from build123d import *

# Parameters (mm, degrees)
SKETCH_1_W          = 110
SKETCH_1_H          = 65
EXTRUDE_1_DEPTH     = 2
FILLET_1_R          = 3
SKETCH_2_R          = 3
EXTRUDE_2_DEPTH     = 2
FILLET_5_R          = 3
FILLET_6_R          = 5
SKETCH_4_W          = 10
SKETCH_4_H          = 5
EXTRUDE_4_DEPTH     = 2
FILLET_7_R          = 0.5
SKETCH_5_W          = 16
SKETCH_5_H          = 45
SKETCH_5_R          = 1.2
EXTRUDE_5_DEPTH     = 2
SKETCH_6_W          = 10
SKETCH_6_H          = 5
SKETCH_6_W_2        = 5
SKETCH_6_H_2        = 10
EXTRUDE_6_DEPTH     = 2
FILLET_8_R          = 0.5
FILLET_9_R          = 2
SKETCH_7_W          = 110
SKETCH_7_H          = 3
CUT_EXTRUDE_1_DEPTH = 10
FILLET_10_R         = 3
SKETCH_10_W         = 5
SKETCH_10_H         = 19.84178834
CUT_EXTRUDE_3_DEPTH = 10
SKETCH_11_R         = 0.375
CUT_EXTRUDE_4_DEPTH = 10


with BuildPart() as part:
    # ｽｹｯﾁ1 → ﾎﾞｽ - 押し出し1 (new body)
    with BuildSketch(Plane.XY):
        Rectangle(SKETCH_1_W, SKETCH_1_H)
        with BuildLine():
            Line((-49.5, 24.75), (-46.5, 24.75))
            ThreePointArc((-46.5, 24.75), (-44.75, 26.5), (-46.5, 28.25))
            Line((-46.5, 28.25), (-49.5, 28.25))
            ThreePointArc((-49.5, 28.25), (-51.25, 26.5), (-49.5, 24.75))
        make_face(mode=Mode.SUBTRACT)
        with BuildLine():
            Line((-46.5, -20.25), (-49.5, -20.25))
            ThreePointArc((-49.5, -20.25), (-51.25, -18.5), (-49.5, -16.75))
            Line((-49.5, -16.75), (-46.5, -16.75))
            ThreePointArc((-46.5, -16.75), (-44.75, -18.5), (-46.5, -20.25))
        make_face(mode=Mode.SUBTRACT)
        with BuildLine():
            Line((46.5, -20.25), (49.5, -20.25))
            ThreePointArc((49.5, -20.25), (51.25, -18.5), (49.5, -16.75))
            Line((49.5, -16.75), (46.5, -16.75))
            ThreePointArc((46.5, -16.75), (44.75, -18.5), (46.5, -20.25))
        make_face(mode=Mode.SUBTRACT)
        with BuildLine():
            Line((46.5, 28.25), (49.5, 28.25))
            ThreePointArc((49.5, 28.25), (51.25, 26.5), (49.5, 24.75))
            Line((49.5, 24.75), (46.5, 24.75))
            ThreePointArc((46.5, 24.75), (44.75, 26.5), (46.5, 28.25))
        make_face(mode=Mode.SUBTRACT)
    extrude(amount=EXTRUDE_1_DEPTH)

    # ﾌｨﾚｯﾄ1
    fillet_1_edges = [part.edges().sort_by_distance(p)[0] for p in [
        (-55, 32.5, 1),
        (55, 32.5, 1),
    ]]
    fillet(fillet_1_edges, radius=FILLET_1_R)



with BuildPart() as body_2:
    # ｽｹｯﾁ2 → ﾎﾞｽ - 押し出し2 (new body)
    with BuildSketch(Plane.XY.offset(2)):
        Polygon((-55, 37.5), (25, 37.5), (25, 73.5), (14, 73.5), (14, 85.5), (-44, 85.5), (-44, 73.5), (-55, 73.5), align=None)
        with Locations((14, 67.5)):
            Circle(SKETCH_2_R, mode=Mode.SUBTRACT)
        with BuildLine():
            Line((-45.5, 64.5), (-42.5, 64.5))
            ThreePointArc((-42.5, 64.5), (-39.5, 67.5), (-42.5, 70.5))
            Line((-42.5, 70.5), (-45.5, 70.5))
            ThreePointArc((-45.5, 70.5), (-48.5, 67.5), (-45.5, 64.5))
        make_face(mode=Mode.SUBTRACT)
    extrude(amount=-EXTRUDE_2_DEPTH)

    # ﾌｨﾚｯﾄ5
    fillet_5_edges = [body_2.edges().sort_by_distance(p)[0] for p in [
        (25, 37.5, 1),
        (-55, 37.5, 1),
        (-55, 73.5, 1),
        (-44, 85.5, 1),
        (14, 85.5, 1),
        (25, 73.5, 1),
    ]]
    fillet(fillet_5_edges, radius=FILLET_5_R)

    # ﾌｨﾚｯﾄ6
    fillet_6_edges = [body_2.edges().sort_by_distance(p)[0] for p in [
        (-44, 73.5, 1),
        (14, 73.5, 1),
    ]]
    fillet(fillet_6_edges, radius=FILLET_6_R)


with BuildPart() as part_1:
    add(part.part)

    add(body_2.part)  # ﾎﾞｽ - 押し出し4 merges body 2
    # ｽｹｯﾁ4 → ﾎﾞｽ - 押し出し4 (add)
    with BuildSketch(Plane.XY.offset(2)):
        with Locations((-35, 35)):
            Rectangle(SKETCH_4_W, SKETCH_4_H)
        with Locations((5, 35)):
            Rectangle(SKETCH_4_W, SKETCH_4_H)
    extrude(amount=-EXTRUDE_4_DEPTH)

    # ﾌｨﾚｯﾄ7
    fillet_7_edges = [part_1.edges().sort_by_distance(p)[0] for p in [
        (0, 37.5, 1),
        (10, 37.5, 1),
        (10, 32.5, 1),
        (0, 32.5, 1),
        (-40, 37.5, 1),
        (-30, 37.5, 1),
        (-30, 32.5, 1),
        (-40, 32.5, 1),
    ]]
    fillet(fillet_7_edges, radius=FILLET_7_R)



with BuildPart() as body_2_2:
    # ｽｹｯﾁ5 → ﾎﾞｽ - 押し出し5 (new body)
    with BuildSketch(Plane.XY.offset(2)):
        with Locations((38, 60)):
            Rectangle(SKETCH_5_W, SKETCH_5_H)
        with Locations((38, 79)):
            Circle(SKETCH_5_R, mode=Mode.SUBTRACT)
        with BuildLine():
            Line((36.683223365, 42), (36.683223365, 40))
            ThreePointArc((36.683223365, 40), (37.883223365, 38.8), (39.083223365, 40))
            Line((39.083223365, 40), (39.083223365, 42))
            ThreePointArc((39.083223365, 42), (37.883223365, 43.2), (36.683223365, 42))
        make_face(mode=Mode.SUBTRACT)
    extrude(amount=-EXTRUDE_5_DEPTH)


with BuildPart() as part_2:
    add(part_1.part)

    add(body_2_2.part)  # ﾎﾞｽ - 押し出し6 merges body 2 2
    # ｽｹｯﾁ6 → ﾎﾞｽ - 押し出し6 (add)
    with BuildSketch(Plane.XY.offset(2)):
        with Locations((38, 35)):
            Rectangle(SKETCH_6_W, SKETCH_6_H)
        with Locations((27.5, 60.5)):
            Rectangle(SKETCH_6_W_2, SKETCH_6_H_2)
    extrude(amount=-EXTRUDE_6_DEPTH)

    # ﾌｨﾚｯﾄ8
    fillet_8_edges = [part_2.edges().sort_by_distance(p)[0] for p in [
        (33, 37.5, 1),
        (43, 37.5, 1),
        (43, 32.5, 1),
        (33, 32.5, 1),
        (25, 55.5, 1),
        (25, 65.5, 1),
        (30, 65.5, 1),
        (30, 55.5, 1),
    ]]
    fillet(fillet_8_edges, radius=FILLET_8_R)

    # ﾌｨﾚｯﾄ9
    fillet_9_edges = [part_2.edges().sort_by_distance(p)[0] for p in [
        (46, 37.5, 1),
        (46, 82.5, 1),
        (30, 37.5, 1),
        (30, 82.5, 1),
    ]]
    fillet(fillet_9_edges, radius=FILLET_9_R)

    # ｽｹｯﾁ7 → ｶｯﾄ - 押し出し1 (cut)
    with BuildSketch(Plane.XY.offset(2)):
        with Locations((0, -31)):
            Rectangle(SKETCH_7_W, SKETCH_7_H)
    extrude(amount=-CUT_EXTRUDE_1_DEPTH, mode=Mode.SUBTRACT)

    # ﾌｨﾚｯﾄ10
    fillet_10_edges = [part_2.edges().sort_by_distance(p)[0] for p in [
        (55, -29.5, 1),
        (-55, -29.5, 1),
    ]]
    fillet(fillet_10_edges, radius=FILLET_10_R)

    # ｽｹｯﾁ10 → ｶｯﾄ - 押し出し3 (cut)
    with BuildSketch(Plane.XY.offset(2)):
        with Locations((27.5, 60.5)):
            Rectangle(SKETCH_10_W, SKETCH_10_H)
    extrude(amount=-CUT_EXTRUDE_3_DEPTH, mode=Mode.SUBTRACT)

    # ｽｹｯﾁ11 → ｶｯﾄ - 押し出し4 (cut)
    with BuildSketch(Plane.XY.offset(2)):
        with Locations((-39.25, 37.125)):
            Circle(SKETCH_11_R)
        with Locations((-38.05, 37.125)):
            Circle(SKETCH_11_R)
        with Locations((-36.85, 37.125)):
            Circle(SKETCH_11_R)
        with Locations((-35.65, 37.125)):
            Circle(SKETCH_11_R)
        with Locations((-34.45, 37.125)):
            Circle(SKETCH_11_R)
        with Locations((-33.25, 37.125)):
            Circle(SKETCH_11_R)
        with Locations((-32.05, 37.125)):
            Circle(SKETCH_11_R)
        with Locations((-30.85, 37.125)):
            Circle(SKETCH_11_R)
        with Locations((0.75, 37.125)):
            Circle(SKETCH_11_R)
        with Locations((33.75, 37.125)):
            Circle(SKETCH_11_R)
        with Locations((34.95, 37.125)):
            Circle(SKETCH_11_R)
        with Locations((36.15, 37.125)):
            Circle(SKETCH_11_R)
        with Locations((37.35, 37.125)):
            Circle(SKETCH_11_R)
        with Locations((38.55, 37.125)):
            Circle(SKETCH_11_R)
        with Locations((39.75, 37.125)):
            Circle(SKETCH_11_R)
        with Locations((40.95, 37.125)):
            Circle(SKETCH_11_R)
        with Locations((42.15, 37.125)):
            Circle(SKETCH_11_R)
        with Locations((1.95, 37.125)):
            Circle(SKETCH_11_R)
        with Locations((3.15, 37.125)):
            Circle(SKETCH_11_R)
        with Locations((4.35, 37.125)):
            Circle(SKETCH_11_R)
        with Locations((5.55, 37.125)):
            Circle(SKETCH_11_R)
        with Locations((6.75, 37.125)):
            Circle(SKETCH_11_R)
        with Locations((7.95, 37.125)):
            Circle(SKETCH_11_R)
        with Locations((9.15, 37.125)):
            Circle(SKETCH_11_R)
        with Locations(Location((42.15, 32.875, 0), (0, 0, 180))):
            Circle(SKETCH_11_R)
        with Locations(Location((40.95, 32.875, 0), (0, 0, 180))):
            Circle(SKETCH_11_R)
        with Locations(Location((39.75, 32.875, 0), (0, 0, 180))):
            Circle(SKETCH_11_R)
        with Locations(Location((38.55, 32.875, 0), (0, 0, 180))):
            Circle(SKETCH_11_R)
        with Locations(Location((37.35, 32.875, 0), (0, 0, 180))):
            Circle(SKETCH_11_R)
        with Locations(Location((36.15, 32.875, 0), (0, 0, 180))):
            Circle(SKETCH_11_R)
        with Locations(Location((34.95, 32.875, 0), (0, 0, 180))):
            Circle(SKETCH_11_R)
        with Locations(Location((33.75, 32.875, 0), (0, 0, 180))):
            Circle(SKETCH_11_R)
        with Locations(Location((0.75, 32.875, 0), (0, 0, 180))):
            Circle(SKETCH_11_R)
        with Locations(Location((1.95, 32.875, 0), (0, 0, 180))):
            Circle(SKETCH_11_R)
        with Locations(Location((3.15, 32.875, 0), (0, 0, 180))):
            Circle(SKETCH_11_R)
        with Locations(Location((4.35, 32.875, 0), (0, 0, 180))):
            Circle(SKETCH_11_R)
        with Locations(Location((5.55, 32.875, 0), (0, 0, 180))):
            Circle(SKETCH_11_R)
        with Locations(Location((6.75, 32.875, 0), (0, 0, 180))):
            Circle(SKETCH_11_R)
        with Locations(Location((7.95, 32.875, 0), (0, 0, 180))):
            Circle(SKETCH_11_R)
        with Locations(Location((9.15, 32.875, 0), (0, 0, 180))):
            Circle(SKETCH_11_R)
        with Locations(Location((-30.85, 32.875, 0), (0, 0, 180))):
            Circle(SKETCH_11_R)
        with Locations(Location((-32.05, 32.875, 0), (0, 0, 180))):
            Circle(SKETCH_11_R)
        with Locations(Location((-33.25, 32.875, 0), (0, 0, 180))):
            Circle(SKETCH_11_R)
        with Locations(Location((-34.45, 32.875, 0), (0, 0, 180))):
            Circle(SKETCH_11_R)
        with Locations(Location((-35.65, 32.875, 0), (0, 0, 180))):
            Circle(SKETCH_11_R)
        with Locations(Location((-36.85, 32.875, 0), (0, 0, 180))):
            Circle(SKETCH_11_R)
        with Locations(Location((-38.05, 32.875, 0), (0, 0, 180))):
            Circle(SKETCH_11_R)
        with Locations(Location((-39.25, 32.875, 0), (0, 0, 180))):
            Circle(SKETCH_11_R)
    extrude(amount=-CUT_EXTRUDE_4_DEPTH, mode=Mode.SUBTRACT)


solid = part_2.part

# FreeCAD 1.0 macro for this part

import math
import FreeCAD as App
import Part
import Sketcher


def edges_at(feature, points):
    """Names of the edges that pass closest to the given points."""
    edges = feature.Shape.Edges
    near = lambda p: min(range(len(edges)), key=lambda i: edges[i].distToShape(Part.Vertex(*p))[0])
    return sorted({f"Edge{near(p) + 1}" for p in points})

doc = App.newDocument("Part")
params = doc.addObject("Spreadsheet::Sheet", "Params")
for row, (alias, value) in enumerate([
    ("sketch1_width", "110 mm"),
    ("sketch1_width2", "3 mm"),
    ("sketch1_height", "65 mm"),
    ("sketch1_radius", "1.75 mm"),
    ("pad1_length", "2 mm"),
    ("fillet_radius", "3 mm"),
    ("sketch2_diameter", "6 mm"),
    ("sketch2_width", "80 mm"),
    ("sketch2_width2", "11 mm"),
    ("sketch2_width3", "3 mm"),
    ("sketch2_height", "36 mm"),
    ("pad2_length", "2 mm"),
    ("fillet2_radius", "3 mm"),
    ("fillet3_radius", "5 mm"),
    ("sketch3_width", "10 mm"),
    ("sketch3_height", "5 mm"),
    ("pad3_length", "2 mm"),
    ("fillet4_radius", "0.5 mm"),
    ("sketch4_diameter", "2.4 mm"),
    ("sketch4_width", "16 mm"),
    ("sketch4_height", "45 mm"),
    ("sketch4_height2", "2 mm"),
    ("pad4_length", "2 mm"),
    ("sketch5_width", "10 mm"),
    ("sketch5_width2", "5 mm"),
    ("pad5_length", "2 mm"),
    ("fillet5_radius", "0.5 mm"),
    ("fillet6_radius", "2 mm"),
    ("sketch6_width", "110 mm"),
    ("sketch6_height", "3 mm"),
    ("pocket1_length", "10 mm"),
    ("fillet7_radius", "3 mm"),
    ("sketch7_width", "5 mm"),
    ("pocket2_length", "10 mm"),
    ("sketch8_diameter", "0.75 mm"),
    ("pocket3_length", "10 mm"),
], start=1):
    params.set(f"A{row}", alias)
    params.set(f"B{row}", "=" + value)
    params.setAlias(f"B{row}", alias)

body = doc.addObject("PartDesign::Body", "Body")

# Sketch on XY plane
sketch1 = body.newObject("Sketcher::SketchObject", "Sketch")
sketch1.AttachmentSupport = (doc.getObject("XY_Plane"), [""])
sketch1.MapMode = "FlatFace"
sketch1.addGeometry([
    Part.LineSegment(App.Vector(-55, 32.5, 0), App.Vector(-55, -32.5, 0)),  # 0
    Part.LineSegment(App.Vector(-55, -32.5, 0), App.Vector(55, -32.5, 0)),  # 1
    Part.LineSegment(App.Vector(55, -32.5, 0), App.Vector(55, 32.5, 0)),  # 2
    Part.LineSegment(App.Vector(55, 32.5, 0), App.Vector(-55, 32.5, 0)),  # 3
    Part.ArcOfCircle(Part.Circle(App.Vector(-46.5, -18.5, 0), App.Vector(0, 0, 1), 1.75), math.radians(-90), math.radians(90)),  # 4
    Part.LineSegment(App.Vector(-46.5, -20.25, 0), App.Vector(-49.5, -20.25, 0)),  # 5
    Part.ArcOfCircle(Part.Circle(App.Vector(-49.5, -18.5, 0), App.Vector(0, 0, 1), 1.75), math.radians(90), math.radians(270)),  # 6
    Part.LineSegment(App.Vector(-49.5, -16.75, 0), App.Vector(-46.5, -16.75, 0)),  # 7
    Part.LineSegment(App.Vector(49.5, -20.25, 0), App.Vector(46.5, -20.25, 0)),  # 8
    Part.ArcOfCircle(Part.Circle(App.Vector(46.5, -18.5, 0), App.Vector(0, 0, 1), 1.75), math.radians(90), math.radians(270)),  # 9
    Part.LineSegment(App.Vector(46.5, -16.75, 0), App.Vector(49.5, -16.75, 0)),  # 10
    Part.ArcOfCircle(Part.Circle(App.Vector(49.5, -18.5, 0), App.Vector(0, 0, 1), 1.75), math.radians(-90), math.radians(90)),  # 11
    Part.LineSegment(App.Vector(-46.5, 24.75, 0), App.Vector(-49.5, 24.75, 0)),  # 12
    Part.ArcOfCircle(Part.Circle(App.Vector(-49.5, 26.5, 0), App.Vector(0, 0, 1), 1.75), math.radians(90), math.radians(270)),  # 13
    Part.LineSegment(App.Vector(-49.5, 28.25, 0), App.Vector(-46.5, 28.25, 0)),  # 14
    Part.ArcOfCircle(Part.Circle(App.Vector(-46.5, 26.5, 0), App.Vector(0, 0, 1), 1.75), math.radians(-90), math.radians(90)),  # 15
    Part.ArcOfCircle(Part.Circle(App.Vector(46.5, 26.5, 0), App.Vector(0, 0, 1), 1.75), math.radians(90), math.radians(270)),  # 16
    Part.LineSegment(App.Vector(46.5, 28.25, 0), App.Vector(49.5, 28.25, 0)),  # 17
    Part.ArcOfCircle(Part.Circle(App.Vector(49.5, 26.5, 0), App.Vector(0, 0, 1), 1.75), math.radians(-90), math.radians(90)),  # 18
    Part.LineSegment(App.Vector(49.5, 24.75, 0), App.Vector(46.5, 24.75, 0)),  # 19
], False)
sketch1.addConstraint([
    Sketcher.Constraint("Coincident", 0, 2, 1, 1),
    Sketcher.Constraint("Coincident", 1, 2, 2, 1),
    Sketcher.Constraint("Coincident", 2, 2, 3, 1),
    Sketcher.Constraint("Coincident", 3, 2, 0, 1),
    Sketcher.Constraint("Tangent", 4, 1, 5, 1),
    Sketcher.Constraint("Tangent", 5, 2, 6, 2),
    Sketcher.Constraint("Tangent", 6, 1, 7, 1),
    Sketcher.Constraint("Tangent", 7, 2, 4, 2),
    Sketcher.Constraint("Tangent", 8, 2, 9, 2),
    Sketcher.Constraint("Tangent", 9, 1, 10, 1),
    Sketcher.Constraint("Tangent", 10, 2, 11, 2),
    Sketcher.Constraint("Tangent", 11, 1, 8, 1),
    Sketcher.Constraint("Tangent", 12, 2, 13, 2),
    Sketcher.Constraint("Tangent", 13, 1, 14, 1),
    Sketcher.Constraint("Tangent", 14, 2, 15, 2),
    Sketcher.Constraint("Tangent", 15, 1, 12, 1),
    Sketcher.Constraint("Tangent", 16, 1, 17, 1),
    Sketcher.Constraint("Tangent", 17, 2, 18, 2),
    Sketcher.Constraint("Tangent", 18, 1, 19, 1),
    Sketcher.Constraint("Tangent", 19, 2, 16, 2),
    Sketcher.Constraint("Vertical", 0),
    Sketcher.Constraint("Horizontal", 1),
    Sketcher.Constraint("Vertical", 2),
    Sketcher.Constraint("Horizontal", 3),
    Sketcher.Constraint("Horizontal", 5),
    Sketcher.Constraint("Horizontal", 7),
    Sketcher.Constraint("Horizontal", 8),
    Sketcher.Constraint("Horizontal", 10),
    Sketcher.Constraint("Horizontal", 12),
    Sketcher.Constraint("Horizontal", 14),
    Sketcher.Constraint("Horizontal", 17),
    Sketcher.Constraint("Horizontal", 19),
    Sketcher.Constraint("Equal", 6, 9),
    Sketcher.Constraint("Equal", 11, 13),
    Sketcher.Constraint("Equal", 15, 16),
    Sketcher.Constraint("Symmetric", 0, 2, 2, 2, -1, 1),
    Sketcher.Constraint("Symmetric", 4, 3, 9, 3, -2),
    Sketcher.Constraint("Symmetric", 15, 3, 16, 3, -2),
    Sketcher.Constraint("Vertical", 6, 3, 13, 3),
    Sketcher.Constraint("Vertical", 4, 3, 15, 3),
    Sketcher.Constraint("Vertical", 11, 3, 18, 3),
    Sketcher.Constraint("Equal", 7, 8),
    Sketcher.Constraint("DistanceX", 1, 1, 1, 2, 110.0),
    Sketcher.Constraint("DistanceX", 5, 2, 5, 1, 3.0),
    Sketcher.Constraint("DistanceY", 0, 2, 0, 1, 65.0),
    Sketcher.Constraint("Radius", 4, 1.75),
    Sketcher.Constraint("DistanceX", 4, 3, 9, 3, 93.0),
    Sketcher.Constraint("DistanceY", 6, 3, 13, 3, 45.0),
    Sketcher.Constraint("DistanceY", 0, 2, 6, 3, 14.0),
])
sketch1.setExpression("Constraints[42]", "Params.sketch1_width")
sketch1.setExpression("Constraints[43]", "Params.sketch1_width2")
sketch1.setExpression("Constraints[44]", "Params.sketch1_height")
sketch1.setExpression("Constraints[45]", "Params.sketch1_radius")
pad1 = body.newObject("PartDesign::Pad", "Pad")
pad1.Profile = sketch1
pad1.setExpression("Length", "Params.pad1_length")
doc.recompute()

fillet = body.newObject("PartDesign::Fillet", "Fillet")
fillet.Base = (pad1, edges_at(pad1, [(-55, 32.5, 1), (55, 32.5, 1)]))
fillet.setExpression("Radius", "Params.fillet_radius")
body2 = doc.addObject("PartDesign::Body", "Body001")

# Sketch on XY plane
sketch2 = body2.newObject("Sketcher::SketchObject", "Sketch001")
sketch2.AttachmentSupport = (doc.getObject("XY_Plane001"), [""])
sketch2.MapMode = "FlatFace"
sketch2.AttachmentOffset = App.Placement(App.Vector(0, 0, 2), App.Rotation())
sketch2.addGeometry([
    Part.LineSegment(App.Vector(-55, 37.5, 0), App.Vector(25, 37.5, 0)),  # 0
    Part.LineSegment(App.Vector(25, 37.5, 0), App.Vector(25, 73.5, 0)),  # 1
    Part.LineSegment(App.Vector(25, 73.5, 0), App.Vector(14, 73.5, 0)),  # 2
    Part.LineSegment(App.Vector(14, 73.5, 0), App.Vector(14, 85.5, 0)),  # 3
    Part.LineSegment(App.Vector(14, 85.5, 0), App.Vector(-44, 85.5, 0)),  # 4
    Part.LineSegment(App.Vector(-44, 85.5, 0), App.Vector(-44, 73.5, 0)),  # 5
    Part.LineSegment(App.Vector(-44, 73.5, 0), App.Vector(-55, 73.5, 0)),  # 6
    Part.LineSegment(App.Vector(-55, 73.5, 0), App.Vector(-55, 37.5, 0)),  # 7
    Part.LineSegment(App.Vector(-42.5, 64.5, 0), App.Vector(-45.5, 64.5, 0)),  # 8
    Part.ArcOfCircle(Part.Circle(App.Vector(-45.5, 67.5, 0), App.Vector(0, 0, 1), 3), math.radians(90), math.radians(270)),  # 9
    Part.LineSegment(App.Vector(-45.5, 70.5, 0), App.Vector(-42.5, 70.5, 0)),  # 10
    Part.ArcOfCircle(Part.Circle(App.Vector(-42.5, 67.5, 0), App.Vector(0, 0, 1), 3), math.radians(-90), math.radians(90)),  # 11
    Part.Circle(App.Vector(14, 67.5, 0), App.Vector(0, 0, 1), 3),  # 12
], False)
sketch2.addConstraint([
    Sketcher.Constraint("Coincident", 0, 2, 1, 1),
    Sketcher.Constraint("Coincident", 1, 2, 2, 1),
    Sketcher.Constraint("Coincident", 2, 2, 3, 1),
    Sketcher.Constraint("Coincident", 3, 2, 4, 1),
    Sketcher.Constraint("Coincident", 4, 2, 5, 1),
    Sketcher.Constraint("Coincident", 5, 2, 6, 1),
    Sketcher.Constraint("Coincident", 6, 2, 7, 1),
    Sketcher.Constraint("Coincident", 7, 2, 0, 1),
    Sketcher.Constraint("Tangent", 8, 2, 9, 2),
    Sketcher.Constraint("Tangent", 9, 1, 10, 1),
    Sketcher.Constraint("Tangent", 10, 2, 11, 2),
    Sketcher.Constraint("Tangent", 11, 1, 8, 1),
    Sketcher.Constraint("Horizontal", 0),
    Sketcher.Constraint("Vertical", 1),
    Sketcher.Constraint("Horizontal", 2),
    Sketcher.Constraint("Vertical", 3),
    Sketcher.Constraint("Horizontal", 4),
    Sketcher.Constraint("Vertical", 5),
    Sketcher.Constraint("Horizontal", 6),
    Sketcher.Constraint("Vertical", 7),
    Sketcher.Constraint("Horizontal", 8),
    Sketcher.Constraint("Horizontal", 10),
    Sketcher.Constraint("Equal", 11, 12),
    Sketcher.Constraint("Horizontal", 11, 3, 12, 3),
    Sketcher.Constraint("Horizontal", 2, 2, 5, 2),
    Sketcher.Constraint("Vertical", 12, 3, 2, 2),
    Sketcher.Constraint("Equal", 2, 6),
    Sketcher.Constraint("Diameter", 12, 6.0),
    Sketcher.Constraint("DistanceX", 0, 1, 0, 2, 80.0),
    Sketcher.Constraint("DistanceX", 2, 2, 2, 1, 11.0),
    Sketcher.Constraint("DistanceX", 8, 2, 8, 1, 3.0),
    Sketcher.Constraint("DistanceY", 1, 1, 1, 2, 36.0),
    Sketcher.Constraint("DistanceY", 3, 1, 3, 2, 12.0),
    Sketcher.Constraint("DistanceX", -1, 1, 12, 3, 14.0),
    Sketcher.Constraint("DistanceY", 0, 2, 12, 3, 30.0),
    Sketcher.Constraint("DistanceX", 9, 3, -1, 1, 45.5),
    Sketcher.Constraint("DistanceY", -1, 1, 9, 3, 67.5),
])
sketch2.setExpression("Constraints[27]", "Params.sketch2_diameter")
sketch2.setExpression("Constraints[28]", "Params.sketch2_width")
sketch2.setExpression("Constraints[29]", "Params.sketch2_width2")
sketch2.setExpression("Constraints[30]", "Params.sketch2_width3")
sketch2.setExpression("Constraints[31]", "Params.sketch2_height")
pad2 = body2.newObject("PartDesign::Pad", "Pad001")
pad2.Profile = sketch2
pad2.setExpression("Length", "Params.pad2_length")
pad2.Reversed = True
doc.recompute()

fillet2 = body2.newObject("PartDesign::Fillet", "Fillet001")
fillet2.Base = (pad2, edges_at(pad2, [
    (25, 37.5, 1),
    (-55, 37.5, 1),
    (-55, 73.5, 1),
    (-44, 85.5, 1),
    (14, 85.5, 1),
    (25, 73.5, 1),
]))
fillet2.setExpression("Radius", "Params.fillet2_radius")
doc.recompute()

fillet3 = body2.newObject("PartDesign::Fillet", "Fillet002")
fillet3.Base = (fillet2, edges_at(fillet2, [(-44, 73.5, 1), (14, 73.5, 1)]))
fillet3.setExpression("Radius", "Params.fillet3_radius")
body.AllowCompound = True
doc.recompute()

boolean = body.newObject("PartDesign::Boolean", "Boolean")
boolean.Type = "Fuse"
boolean.addObjects([body2])

# Sketch on XY plane
sketch3 = body.newObject("Sketcher::SketchObject", "Sketch002")
sketch3.AttachmentSupport = (doc.getObject("XY_Plane"), [""])
sketch3.MapMode = "FlatFace"
sketch3.AttachmentOffset = App.Placement(App.Vector(0, 0, 2), App.Rotation())
sketch3.addGeometry([
    Part.LineSegment(App.Vector(-40, 37.5, 0), App.Vector(-40, 32.5, 0)),  # 0
    Part.LineSegment(App.Vector(-40, 32.5, 0), App.Vector(-30, 32.5, 0)),  # 1
    Part.LineSegment(App.Vector(-30, 32.5, 0), App.Vector(-30, 37.5, 0)),  # 2
    Part.LineSegment(App.Vector(-30, 37.5, 0), App.Vector(-40, 37.5, 0)),  # 3
    Part.LineSegment(App.Vector(0, 37.5, 0), App.Vector(0, 32.5, 0)),  # 4
    Part.LineSegment(App.Vector(0, 32.5, 0), App.Vector(10, 32.5, 0)),  # 5
    Part.LineSegment(App.Vector(10, 32.5, 0), App.Vector(10, 37.5, 0)),  # 6
    Part.LineSegment(App.Vector(10, 37.5, 0), App.Vector(0, 37.5, 0)),  # 7
], False)
sketch3.addConstraint([
    Sketcher.Constraint("Coincident", 0, 2, 1, 1),
    Sketcher.Constraint("Coincident", 1, 2, 2, 1),
    Sketcher.Constraint("Coincident", 2, 2, 3, 1),
    Sketcher.Constraint("Coincident", 3, 2, 0, 1),
    Sketcher.Constraint("Coincident", 4, 2, 5, 1),
    Sketcher.Constraint("Coincident", 5, 2, 6, 1),
    Sketcher.Constraint("Coincident", 6, 2, 7, 1),
    Sketcher.Constraint("Coincident", 7, 2, 4, 1),
    Sketcher.Constraint("Vertical", 0),
    Sketcher.Constraint("Horizontal", 1),
    Sketcher.Constraint("Vertical", 2),
    Sketcher.Constraint("Horizontal", 3),
    Sketcher.Constraint("Vertical", 4),
    Sketcher.Constraint("Horizontal", 5),
    Sketcher.Constraint("Vertical", 6),
    Sketcher.Constraint("Horizontal", 7),
    Sketcher.Constraint("PointOnObject", 4, 2, -2),
    Sketcher.Constraint("Horizontal", 1, 2, 4, 2),
    Sketcher.Constraint("Horizontal", 3, 2, 6, 2),
    Sketcher.Constraint("Equal", 3, 5),
    Sketcher.Constraint("DistanceX", 1, 1, 1, 2, 10.0),
    Sketcher.Constraint("DistanceY", 0, 2, 0, 1, 5.0),
    Sketcher.Constraint("DistanceX", 0, 2, -1, 1, 40.0),
    Sketcher.Constraint("DistanceY", -1, 1, 0, 2, 32.5),
])
sketch3.setExpression("Constraints[20]", "Params.sketch3_width")
sketch3.setExpression("Constraints[21]", "Params.sketch3_height")
pad3 = body.newObject("PartDesign::Pad", "Pad002")
pad3.Profile = sketch3
pad3.setExpression("Length", "Params.pad3_length")
pad3.Reversed = True
doc.recompute()

fillet4 = body.newObject("PartDesign::Fillet", "Fillet003")
fillet4.Base = (pad3, edges_at(pad3, [
    (0, 37.5, 1),
    (10, 37.5, 1),
    (10, 32.5, 1),
    (0, 32.5, 1),
    (-40, 37.5, 1),
    (-30, 37.5, 1),
    (-30, 32.5, 1),
    (-40, 32.5, 1),
]))
fillet4.setExpression("Radius", "Params.fillet4_radius")
body3 = doc.addObject("PartDesign::Body", "Body002")

# Sketch on XY plane
sketch4 = body3.newObject("Sketcher::SketchObject", "Sketch003")
sketch4.AttachmentSupport = (doc.getObject("XY_Plane002"), [""])
sketch4.MapMode = "FlatFace"
sketch4.AttachmentOffset = App.Placement(App.Vector(0, 0, 2), App.Rotation())
sketch4.addGeometry([
    Part.LineSegment(App.Vector(30, 82.5, 0), App.Vector(30, 37.5, 0)),  # 0
    Part.LineSegment(App.Vector(30, 37.5, 0), App.Vector(46, 37.5, 0)),  # 1
    Part.LineSegment(App.Vector(46, 37.5, 0), App.Vector(46, 82.5, 0)),  # 2
    Part.LineSegment(App.Vector(46, 82.5, 0), App.Vector(30, 82.5, 0)),  # 3
    Part.LineSegment(App.Vector(36.683223, 40, 0), App.Vector(36.683223, 42, 0)),  # 4
    Part.ArcOfCircle(Part.Circle(App.Vector(37.883223, 42, 0), App.Vector(0, 0, 1), 1.2), math.radians(0), math.radians(180)),  # 5
    Part.LineSegment(App.Vector(39.083223, 42, 0), App.Vector(39.083223, 40, 0)),  # 6
    Part.ArcOfCircle(Part.Circle(App.Vector(37.883223, 40, 0), App.Vector(0, 0, 1), 1.2), math.radians(180), math.radians(360)),  # 7
    Part.Circle(App.Vector(38, 79, 0), App.Vector(0, 0, 1), 1.2),  # 8
], False)
sketch4.addConstraint([
    Sketcher.Constraint("Coincident", 0, 2, 1, 1),
    Sketcher.Constraint("Coincident", 1, 2, 2, 1),
    Sketcher.Constraint("Coincident", 2, 2, 3, 1),
    Sketcher.Constraint("Coincident", 3, 2, 0, 1),
    Sketcher.Constraint("Tangent", 4, 2, 5, 2),
    Sketcher.Constraint("Tangent", 5, 1, 6, 1),
    Sketcher.Constraint("Tangent", 6, 2, 7, 2),
    Sketcher.Constraint("Tangent", 7, 1, 4, 1),
    Sketcher.Constraint("Vertical", 0),
    Sketcher.Constraint("Horizontal", 1),
    Sketcher.Constraint("Vertical", 2),
    Sketcher.Constraint("Horizontal", 3),
    Sketcher.Constraint("Vertical", 4),
    Sketcher.Constraint("Vertical", 6),
    Sketcher.Constraint("Equal", 7, 8),
    Sketcher.Constraint("Diameter", 8, 2.4),
    Sketcher.Constraint("DistanceX", 1, 1, 1, 2, 16.0),
    Sketcher.Constraint("DistanceY", 0, 2, 0, 1, 45.0),
    Sketcher.Constraint("DistanceY", 4, 1, 4, 2, 2.0),
    Sketcher.Constraint("DistanceY", -1, 1, 5, 3, 42.0),
    Sketcher.Constraint("DistanceX", -1, 1, 8, 3, 38.0),
    Sketcher.Constraint("DistanceY", -1, 1, 8, 3, 79.0),
    Sketcher.Constraint("DistanceX", -1, 1, 0, 2, 30.0),
    Sketcher.Constraint("DistanceY", -1, 1, 0, 2, 37.5),
    Sketcher.Constraint("DistanceX", -1, 1, 5, 3, 37.883223),
])
sketch4.setExpression("Constraints[15]", "Params.sketch4_diameter")
sketch4.setExpression("Constraints[16]", "Params.sketch4_width")
sketch4.setExpression("Constraints[17]", "Params.sketch4_height")
sketch4.setExpression("Constraints[18]", "Params.sketch4_height2")
pad4 = body3.newObject("PartDesign::Pad", "Pad003")
pad4.Profile = sketch4
pad4.setExpression("Length", "Params.pad4_length")
pad4.Reversed = True
body.AllowCompound = True
doc.recompute()

boolean2 = body.newObject("PartDesign::Boolean", "Boolean001")
boolean2.Type = "Fuse"
boolean2.addObjects([body3])

# Sketch on XY plane
sketch5 = body.newObject("Sketcher::SketchObject", "Sketch004")
sketch5.AttachmentSupport = (doc.getObject("XY_Plane"), [""])
sketch5.MapMode = "FlatFace"
sketch5.AttachmentOffset = App.Placement(App.Vector(0, 0, 2), App.Rotation())
sketch5.addGeometry([
    Part.LineSegment(App.Vector(33, 37.5, 0), App.Vector(33, 32.5, 0)),  # 0
    Part.LineSegment(App.Vector(33, 32.5, 0), App.Vector(43, 32.5, 0)),  # 1
    Part.LineSegment(App.Vector(43, 32.5, 0), App.Vector(43, 37.5, 0)),  # 2
    Part.LineSegment(App.Vector(43, 37.5, 0), App.Vector(33, 37.5, 0)),  # 3
    Part.LineSegment(App.Vector(25, 65.5, 0), App.Vector(25, 55.5, 0)),  # 4
    Part.LineSegment(App.Vector(25, 55.5, 0), App.Vector(30, 55.5, 0)),  # 5
    Part.LineSegment(App.Vector(30, 55.5, 0), App.Vector(30, 65.5, 0)),  # 6
    Part.LineSegment(App.Vector(30, 65.5, 0), App.Vector(25, 65.5, 0)),  # 7
], False)
sketch5.addConstraint([
    Sketcher.Constraint("Coincident", 0, 2, 1, 1),
    Sketcher.Constraint("Coincident", 1, 2, 2, 1),
    Sketcher.Constraint("Coincident", 2, 2, 3, 1),
    Sketcher.Constraint("Coincident", 3, 2, 0, 1),
    Sketcher.Constraint("Coincident", 4, 2, 5, 1),
    Sketcher.Constraint("Coincident", 5, 2, 6, 1),
    Sketcher.Constraint("Coincident", 6, 2, 7, 1),
    Sketcher.Constraint("Coincident", 7, 2, 4, 1),
    Sketcher.Constraint("Vertical", 0),
    Sketcher.Constraint("Horizontal", 1),
    Sketcher.Constraint("Vertical", 2),
    Sketcher.Constraint("Horizontal", 3),
    Sketcher.Constraint("Vertical", 4),
    Sketcher.Constraint("Horizontal", 5),
    Sketcher.Constraint("Vertical", 6),
    Sketcher.Constraint("Horizontal", 7),
    Sketcher.Constraint("Equal", 7, 0),
    Sketcher.Constraint("Equal", 3, 4),
    Sketcher.Constraint("DistanceX", 1, 1, 1, 2, 10.0),
    Sketcher.Constraint("DistanceX", 5, 1, 5, 2, 5.0),
    Sketcher.Constraint("DistanceX", -1, 1, 0, 2, 33.0),
    Sketcher.Constraint("DistanceX", -1, 1, 4, 2, 25.0),
    Sketcher.Constraint("DistanceY", 3, 2, 4, 2, 18.0),
    Sketcher.Constraint("DistanceY", -1, 1, 0, 2, 32.5),
])
sketch5.setExpression("Constraints[18]", "Params.sketch5_width")
sketch5.setExpression("Constraints[19]", "Params.sketch5_width2")
pad5 = body.newObject("PartDesign::Pad", "Pad004")
pad5.Profile = sketch5
pad5.setExpression("Length", "Params.pad5_length")
pad5.Reversed = True
doc.recompute()

fillet5 = body.newObject("PartDesign::Fillet", "Fillet004")
fillet5.Base = (pad5, edges_at(pad5, [
    (33, 37.5, 1),
    (43, 37.5, 1),
    (43, 32.5, 1),
    (33, 32.5, 1),
    (25, 55.5, 1),
    (25, 65.5, 1),
    (30, 65.5, 1),
    (30, 55.5, 1),
]))
fillet5.setExpression("Radius", "Params.fillet5_radius")
doc.recompute()

fillet6 = body.newObject("PartDesign::Fillet", "Fillet005")
fillet6.Base = (fillet5, edges_at(fillet5, [
    (46, 37.5, 1),
    (46, 82.5, 1),
    (30, 37.5, 1),
    (30, 82.5, 1),
]))
fillet6.setExpression("Radius", "Params.fillet6_radius")

# Sketch on XY plane
sketch6 = body.newObject("Sketcher::SketchObject", "Sketch005")
sketch6.AttachmentSupport = (doc.getObject("XY_Plane"), [""])
sketch6.MapMode = "FlatFace"
sketch6.AttachmentOffset = App.Placement(App.Vector(0, 0, 2), App.Rotation())
sketch6.addGeometry([
    Part.LineSegment(App.Vector(-55, -29.5, 0), App.Vector(-55, -32.5, 0)),
    Part.LineSegment(App.Vector(-55, -32.5, 0), App.Vector(55, -32.5, 0)),
    Part.LineSegment(App.Vector(55, -32.5, 0), App.Vector(55, -29.5, 0)),
    Part.LineSegment(App.Vector(55, -29.5, 0), App.Vector(-55, -29.5, 0)),
], False)
sketch6.addConstraint([
    Sketcher.Constraint("Coincident", 0, 2, 1, 1),
    Sketcher.Constraint("Coincident", 1, 2, 2, 1),
    Sketcher.Constraint("Coincident", 2, 2, 3, 1),
    Sketcher.Constraint("Coincident", 3, 2, 0, 1),
    Sketcher.Constraint("Vertical", 0),
    Sketcher.Constraint("Horizontal", 1),
    Sketcher.Constraint("Vertical", 2),
    Sketcher.Constraint("Horizontal", 3),
    Sketcher.Constraint("DistanceX", 1, 1, 1, 2, 110.0),
    Sketcher.Constraint("DistanceY", 0, 2, 0, 1, 3.0),
    Sketcher.Constraint("DistanceX", 0, 2, -1, 1, 55.0),
    Sketcher.Constraint("DistanceY", 0, 2, -1, 1, 32.5),
])
sketch6.setExpression("Constraints[8]", "Params.sketch6_width")
sketch6.setExpression("Constraints[9]", "Params.sketch6_height")
pocket1 = body.newObject("PartDesign::Pocket", "Pocket")
pocket1.Profile = sketch6
pocket1.setExpression("Length", "Params.pocket1_length")
doc.recompute()

fillet7 = body.newObject("PartDesign::Fillet", "Fillet006")
fillet7.Base = (pocket1, edges_at(pocket1, [(55, -29.5, 1), (-55, -29.5, 1)]))
fillet7.setExpression("Radius", "Params.fillet7_radius")

# Sketch on XY plane
sketch7 = body.newObject("Sketcher::SketchObject", "Sketch006")
sketch7.AttachmentSupport = (doc.getObject("XY_Plane"), [""])
sketch7.MapMode = "FlatFace"
sketch7.AttachmentOffset = App.Placement(App.Vector(0, 0, 2), App.Rotation())
sketch7.addGeometry([
    Part.LineSegment(App.Vector(25, 70.420894, 0), App.Vector(25, 50.579106, 0)),
    Part.LineSegment(App.Vector(25, 50.579106, 0), App.Vector(30, 50.579106, 0)),
    Part.LineSegment(App.Vector(30, 50.579106, 0), App.Vector(30, 70.420894, 0)),
    Part.LineSegment(App.Vector(30, 70.420894, 0), App.Vector(25, 70.420894, 0)),
], False)
sketch7.addConstraint([
    Sketcher.Constraint("Coincident", 0, 2, 1, 1),
    Sketcher.Constraint("Coincident", 1, 2, 2, 1),
    Sketcher.Constraint("Coincident", 2, 2, 3, 1),
    Sketcher.Constraint("Coincident", 3, 2, 0, 1),
    Sketcher.Constraint("Vertical", 0),
    Sketcher.Constraint("Horizontal", 1),
    Sketcher.Constraint("Vertical", 2),
    Sketcher.Constraint("Horizontal", 3),
    Sketcher.Constraint("DistanceX", 1, 1, 1, 2, 5.0),
    Sketcher.Constraint("DistanceX", -1, 1, 0, 2, 25.0),
    Sketcher.Constraint("DistanceY", 0, 2, 0, 1, 19.841788),
    Sketcher.Constraint("DistanceY", -1, 1, 0, 2, 50.579106),
])
sketch7.setExpression("Constraints[8]", "Params.sketch7_width")
pocket2 = body.newObject("PartDesign::Pocket", "Pocket001")
pocket2.Profile = sketch7
pocket2.setExpression("Length", "Params.pocket2_length")

# Sketch on XY plane
sketch8 = body.newObject("Sketcher::SketchObject", "Sketch007")
sketch8.AttachmentSupport = (doc.getObject("XY_Plane"), [""])
sketch8.MapMode = "FlatFace"
sketch8.AttachmentOffset = App.Placement(App.Vector(0, 0, 2), App.Rotation())
sketch8.addGeometry([
    Part.Circle(App.Vector(-39.25, 37.125, 0), App.Vector(0, 0, 1), 0.375),  # 0
    Part.Circle(App.Vector(-38.05, 37.125, 0), App.Vector(0, 0, 1), 0.375),  # 1
    Part.Circle(App.Vector(-36.85, 37.125, 0), App.Vector(0, 0, 1), 0.375),  # 2
    Part.Circle(App.Vector(-35.65, 37.125, 0), App.Vector(0, 0, 1), 0.375),  # 3
    Part.Circle(App.Vector(-34.45, 37.125, 0), App.Vector(0, 0, 1), 0.375),  # 4
    Part.Circle(App.Vector(-33.25, 37.125, 0), App.Vector(0, 0, 1), 0.375),  # 5
    Part.Circle(App.Vector(-32.05, 37.125, 0), App.Vector(0, 0, 1), 0.375),  # 6
    Part.Circle(App.Vector(-30.85, 37.125, 0), App.Vector(0, 0, 1), 0.375),  # 7
    Part.Circle(App.Vector(0.75, 37.125, 0), App.Vector(0, 0, 1), 0.375),  # 8
    Part.Circle(App.Vector(33.75, 37.125, 0), App.Vector(0, 0, 1), 0.375),  # 9
    Part.Circle(App.Vector(34.95, 37.125, 0), App.Vector(0, 0, 1), 0.375),  # 10
    Part.Circle(App.Vector(36.15, 37.125, 0), App.Vector(0, 0, 1), 0.375),  # 11
    Part.Circle(App.Vector(37.35, 37.125, 0), App.Vector(0, 0, 1), 0.375),  # 12
    Part.Circle(App.Vector(38.55, 37.125, 0), App.Vector(0, 0, 1), 0.375),  # 13
    Part.Circle(App.Vector(39.75, 37.125, 0), App.Vector(0, 0, 1), 0.375),  # 14
    Part.Circle(App.Vector(40.95, 37.125, 0), App.Vector(0, 0, 1), 0.375),  # 15
    Part.Circle(App.Vector(42.15, 37.125, 0), App.Vector(0, 0, 1), 0.375),  # 16
    Part.Circle(App.Vector(1.95, 37.125, 0), App.Vector(0, 0, 1), 0.375),  # 17
    Part.Circle(App.Vector(3.15, 37.125, 0), App.Vector(0, 0, 1), 0.375),  # 18
    Part.Circle(App.Vector(4.35, 37.125, 0), App.Vector(0, 0, 1), 0.375),  # 19
    Part.Circle(App.Vector(5.55, 37.125, 0), App.Vector(0, 0, 1), 0.375),  # 20
    Part.Circle(App.Vector(6.75, 37.125, 0), App.Vector(0, 0, 1), 0.375),  # 21
    Part.Circle(App.Vector(7.95, 37.125, 0), App.Vector(0, 0, 1), 0.375),  # 22
    Part.Circle(App.Vector(9.15, 37.125, 0), App.Vector(0, 0, 1), 0.375),  # 23
    Part.Circle(App.Vector(42.15, 32.875, 0), App.Vector(0, 0, 1), 0.375),  # 24
    Part.Circle(App.Vector(40.95, 32.875, 0), App.Vector(0, 0, 1), 0.375),  # 25
    Part.Circle(App.Vector(39.75, 32.875, 0), App.Vector(0, 0, 1), 0.375),  # 26
    Part.Circle(App.Vector(38.55, 32.875, 0), App.Vector(0, 0, 1), 0.375),  # 27
    Part.Circle(App.Vector(37.35, 32.875, 0), App.Vector(0, 0, 1), 0.375),  # 28
    Part.Circle(App.Vector(36.15, 32.875, 0), App.Vector(0, 0, 1), 0.375),  # 29
    Part.Circle(App.Vector(34.95, 32.875, 0), App.Vector(0, 0, 1), 0.375),  # 30
    Part.Circle(App.Vector(33.75, 32.875, 0), App.Vector(0, 0, 1), 0.375),  # 31
    Part.Circle(App.Vector(0.75, 32.875, 0), App.Vector(0, 0, 1), 0.375),  # 32
    Part.Circle(App.Vector(1.95, 32.875, 0), App.Vector(0, 0, 1), 0.375),  # 33
    Part.Circle(App.Vector(3.15, 32.875, 0), App.Vector(0, 0, 1), 0.375),  # 34
    Part.Circle(App.Vector(4.35, 32.875, 0), App.Vector(0, 0, 1), 0.375),  # 35
    Part.Circle(App.Vector(5.55, 32.875, 0), App.Vector(0, 0, 1), 0.375),  # 36
    Part.Circle(App.Vector(6.75, 32.875, 0), App.Vector(0, 0, 1), 0.375),  # 37
    Part.Circle(App.Vector(7.95, 32.875, 0), App.Vector(0, 0, 1), 0.375),  # 38
    Part.Circle(App.Vector(9.15, 32.875, 0), App.Vector(0, 0, 1), 0.375),  # 39
    Part.Circle(App.Vector(-30.85, 32.875, 0), App.Vector(0, 0, 1), 0.375),  # 40
    Part.Circle(App.Vector(-32.05, 32.875, 0), App.Vector(0, 0, 1), 0.375),  # 41
    Part.Circle(App.Vector(-33.25, 32.875, 0), App.Vector(0, 0, 1), 0.375),  # 42
    Part.Circle(App.Vector(-34.45, 32.875, 0), App.Vector(0, 0, 1), 0.375),  # 43
    Part.Circle(App.Vector(-35.65, 32.875, 0), App.Vector(0, 0, 1), 0.375),  # 44
    Part.Circle(App.Vector(-36.85, 32.875, 0), App.Vector(0, 0, 1), 0.375),  # 45
    Part.Circle(App.Vector(-38.05, 32.875, 0), App.Vector(0, 0, 1), 0.375),  # 46
    Part.Circle(App.Vector(-39.25, 32.875, 0), App.Vector(0, 0, 1), 0.375),  # 47
], False)
sketch8.addConstraint([
    Sketcher.Constraint("Equal", 0, 1),
    Sketcher.Constraint("Equal", 1, 2),
    Sketcher.Constraint("Equal", 2, 3),
    Sketcher.Constraint("Equal", 3, 4),
    Sketcher.Constraint("Equal", 4, 5),
    Sketcher.Constraint("Equal", 5, 6),
    Sketcher.Constraint("Equal", 6, 7),
    Sketcher.Constraint("Equal", 7, 8),
    Sketcher.Constraint("Equal", 8, 9),
    Sketcher.Constraint("Equal", 9, 10),
    Sketcher.Constraint("Equal", 10, 11),
    Sketcher.Constraint("Equal", 11, 12),
    Sketcher.Constraint("Equal", 12, 13),
    Sketcher.Constraint("Equal", 13, 14),
    Sketcher.Constraint("Equal", 14, 15),
    Sketcher.Constraint("Equal", 15, 16),
    Sketcher.Constraint("Equal", 16, 17),
    Sketcher.Constraint("Equal", 17, 18),
    Sketcher.Constraint("Equal", 18, 19),
    Sketcher.Constraint("Equal", 19, 20),
    Sketcher.Constraint("Equal", 20, 21),
    Sketcher.Constraint("Equal", 21, 22),
    Sketcher.Constraint("Equal", 22, 23),
    Sketcher.Constraint("Equal", 23, 24),
    Sketcher.Constraint("Equal", 24, 25),
    Sketcher.Constraint("Equal", 25, 26),
    Sketcher.Constraint("Equal", 26, 27),
    Sketcher.Constraint("Equal", 27, 28),
    Sketcher.Constraint("Equal", 28, 29),
    Sketcher.Constraint("Equal", 29, 30),
    Sketcher.Constraint("Equal", 30, 31),
    Sketcher.Constraint("Equal", 31, 32),
    Sketcher.Constraint("Equal", 32, 33),
    Sketcher.Constraint("Equal", 33, 34),
    Sketcher.Constraint("Equal", 34, 35),
    Sketcher.Constraint("Equal", 35, 36),
    Sketcher.Constraint("Equal", 36, 37),
    Sketcher.Constraint("Equal", 37, 38),
    Sketcher.Constraint("Equal", 38, 39),
    Sketcher.Constraint("Equal", 39, 40),
    Sketcher.Constraint("Equal", 40, 41),
    Sketcher.Constraint("Equal", 41, 42),
    Sketcher.Constraint("Equal", 42, 43),
    Sketcher.Constraint("Equal", 43, 44),
    Sketcher.Constraint("Equal", 44, 45),
    Sketcher.Constraint("Equal", 45, 46),
    Sketcher.Constraint("Equal", 46, 47),
    Sketcher.Constraint("Horizontal", 0, 3, 1, 3),
    Sketcher.Constraint("Horizontal", 1, 3, 2, 3),
    Sketcher.Constraint("Horizontal", 2, 3, 3, 3),
    Sketcher.Constraint("Horizontal", 3, 3, 4, 3),
    Sketcher.Constraint("Horizontal", 4, 3, 5, 3),
    Sketcher.Constraint("Horizontal", 5, 3, 6, 3),
    Sketcher.Constraint("Horizontal", 6, 3, 7, 3),
    Sketcher.Constraint("Horizontal", 7, 3, 8, 3),
    Sketcher.Constraint("Horizontal", 8, 3, 9, 3),
    Sketcher.Constraint("Horizontal", 9, 3, 10, 3),
    Sketcher.Constraint("Horizontal", 10, 3, 11, 3),
    Sketcher.Constraint("Horizontal", 11, 3, 12, 3),
    Sketcher.Constraint("Horizontal", 12, 3, 13, 3),
    Sketcher.Constraint("Horizontal", 13, 3, 14, 3),
    Sketcher.Constraint("Horizontal", 14, 3, 15, 3),
    Sketcher.Constraint("Horizontal", 15, 3, 16, 3),
    Sketcher.Constraint("Horizontal", 16, 3, 17, 3),
    Sketcher.Constraint("Horizontal", 17, 3, 18, 3),
    Sketcher.Constraint("Horizontal", 18, 3, 19, 3),
    Sketcher.Constraint("Horizontal", 19, 3, 20, 3),
    Sketcher.Constraint("Horizontal", 20, 3, 21, 3),
    Sketcher.Constraint("Horizontal", 21, 3, 22, 3),
    Sketcher.Constraint("Horizontal", 22, 3, 23, 3),
    Sketcher.Constraint("Horizontal", 24, 3, 25, 3),
    Sketcher.Constraint("Horizontal", 25, 3, 26, 3),
    Sketcher.Constraint("Horizontal", 26, 3, 27, 3),
    Sketcher.Constraint("Horizontal", 27, 3, 28, 3),
    Sketcher.Constraint("Horizontal", 28, 3, 29, 3),
    Sketcher.Constraint("Horizontal", 29, 3, 30, 3),
    Sketcher.Constraint("Horizontal", 30, 3, 31, 3),
    Sketcher.Constraint("Horizontal", 31, 3, 32, 3),
    Sketcher.Constraint("Horizontal", 32, 3, 33, 3),
    Sketcher.Constraint("Horizontal", 33, 3, 34, 3),
    Sketcher.Constraint("Horizontal", 34, 3, 35, 3),
    Sketcher.Constraint("Horizontal", 35, 3, 36, 3),
    Sketcher.Constraint("Horizontal", 36, 3, 37, 3),
    Sketcher.Constraint("Horizontal", 37, 3, 38, 3),
    Sketcher.Constraint("Horizontal", 38, 3, 39, 3),
    Sketcher.Constraint("Horizontal", 39, 3, 40, 3),
    Sketcher.Constraint("Horizontal", 40, 3, 41, 3),
    Sketcher.Constraint("Horizontal", 41, 3, 42, 3),
    Sketcher.Constraint("Horizontal", 42, 3, 43, 3),
    Sketcher.Constraint("Horizontal", 43, 3, 44, 3),
    Sketcher.Constraint("Horizontal", 44, 3, 45, 3),
    Sketcher.Constraint("Horizontal", 45, 3, 46, 3),
    Sketcher.Constraint("Horizontal", 46, 3, 47, 3),
    Sketcher.Constraint("Vertical", 16, 3, 24, 3),
    Sketcher.Constraint("Vertical", 15, 3, 25, 3),
    Sketcher.Constraint("Vertical", 14, 3, 26, 3),
    Sketcher.Constraint("Vertical", 13, 3, 27, 3),
    Sketcher.Constraint("Vertical", 12, 3, 28, 3),
    Sketcher.Constraint("Vertical", 11, 3, 29, 3),
    Sketcher.Constraint("Vertical", 10, 3, 30, 3),
    Sketcher.Constraint("Vertical", 9, 3, 31, 3),
    Sketcher.Constraint("Vertical", 8, 3, 32, 3),
    Sketcher.Constraint("Vertical", 17, 3, 33, 3),
    Sketcher.Constraint("Vertical", 18, 3, 34, 3),
    Sketcher.Constraint("Vertical", 19, 3, 35, 3),
    Sketcher.Constraint("Vertical", 20, 3, 36, 3),
    Sketcher.Constraint("Vertical", 21, 3, 37, 3),
    Sketcher.Constraint("Vertical", 22, 3, 38, 3),
    Sketcher.Constraint("Vertical", 23, 3, 39, 3),
    Sketcher.Constraint("Vertical", 7, 3, 40, 3),
    Sketcher.Constraint("Vertical", 6, 3, 41, 3),
    Sketcher.Constraint("Vertical", 5, 3, 42, 3),
    Sketcher.Constraint("Vertical", 4, 3, 43, 3),
    Sketcher.Constraint("Vertical", 3, 3, 44, 3),
    Sketcher.Constraint("Vertical", 2, 3, 45, 3),
    Sketcher.Constraint("Vertical", 1, 3, 46, 3),
    Sketcher.Constraint("Vertical", 0, 3, 47, 3),
    Sketcher.Constraint("Diameter", 0, 0.75),
    Sketcher.Constraint("DistanceX", 0, 3, 5, 3, 6.0),
    Sketcher.Constraint("DistanceX", 1, 3, 6, 3, 6.0),
    Sketcher.Constraint("DistanceX", 2, 3, 7, 3, 6.0),
    Sketcher.Constraint("DistanceX", 5, 3, 8, 3, 34.0),
    Sketcher.Constraint("DistanceX", 8, 3, 9, 3, 33.0),
    Sketcher.Constraint("DistanceX", 6, 3, 10, 3, 67.0),
    Sketcher.Constraint("DistanceX", 7, 3, 11, 3, 67.0),
    Sketcher.Constraint("DistanceX", 9, 3, 14, 3, 6.0),
    Sketcher.Constraint("DistanceX", 10, 3, 15, 3, 6.0),
    Sketcher.Constraint("DistanceX", 11, 3, 16, 3, 6.0),
    Sketcher.Constraint("DistanceX", 17, 3, 10, 3, 33.0),
    Sketcher.Constraint("DistanceX", 18, 3, 11, 3, 33.0),
    Sketcher.Constraint("DistanceX", 8, 3, 21, 3, 6.0),
    Sketcher.Constraint("DistanceX", 17, 3, 22, 3, 6.0),
    Sketcher.Constraint("DistanceX", 18, 3, 23, 3, 6.0),
    Sketcher.Constraint("DistanceX", 0, 3, 1, 3, 1.2),
    Sketcher.Constraint("DistanceX", 1, 3, 2, 3, 1.2),
    Sketcher.Constraint("DistanceX", 2, 3, 3, 3, 1.2),
    Sketcher.Constraint("DistanceX", 3, 3, 4, 3, 1.2),
    Sketcher.Constraint("DistanceX", 11, 3, 12, 3, 1.2),
    Sketcher.Constraint("DistanceX", 12, 3, 13, 3, 1.2),
    Sketcher.Constraint("DistanceX", 18, 3, 19, 3, 1.2),
    Sketcher.Constraint("DistanceX", 19, 3, 20, 3, 1.2),
    Sketcher.Constraint("DistanceX", 0, 3, -1, 1, 39.25),
    Sketcher.Constraint("DistanceY", 24, 3, 16, 3, 4.25),
    Sketcher.Constraint("DistanceY", -1, 1, 0, 3, 37.125),
])
sketch8.setExpression("Constraints[117]", "Params.sketch8_diameter")
pocket3 = body.newObject("PartDesign::Pocket", "Pocket002")
pocket3.Profile = sketch8
pocket3.setExpression("Length", "Params.pocket3_length")

doc.recompute()
